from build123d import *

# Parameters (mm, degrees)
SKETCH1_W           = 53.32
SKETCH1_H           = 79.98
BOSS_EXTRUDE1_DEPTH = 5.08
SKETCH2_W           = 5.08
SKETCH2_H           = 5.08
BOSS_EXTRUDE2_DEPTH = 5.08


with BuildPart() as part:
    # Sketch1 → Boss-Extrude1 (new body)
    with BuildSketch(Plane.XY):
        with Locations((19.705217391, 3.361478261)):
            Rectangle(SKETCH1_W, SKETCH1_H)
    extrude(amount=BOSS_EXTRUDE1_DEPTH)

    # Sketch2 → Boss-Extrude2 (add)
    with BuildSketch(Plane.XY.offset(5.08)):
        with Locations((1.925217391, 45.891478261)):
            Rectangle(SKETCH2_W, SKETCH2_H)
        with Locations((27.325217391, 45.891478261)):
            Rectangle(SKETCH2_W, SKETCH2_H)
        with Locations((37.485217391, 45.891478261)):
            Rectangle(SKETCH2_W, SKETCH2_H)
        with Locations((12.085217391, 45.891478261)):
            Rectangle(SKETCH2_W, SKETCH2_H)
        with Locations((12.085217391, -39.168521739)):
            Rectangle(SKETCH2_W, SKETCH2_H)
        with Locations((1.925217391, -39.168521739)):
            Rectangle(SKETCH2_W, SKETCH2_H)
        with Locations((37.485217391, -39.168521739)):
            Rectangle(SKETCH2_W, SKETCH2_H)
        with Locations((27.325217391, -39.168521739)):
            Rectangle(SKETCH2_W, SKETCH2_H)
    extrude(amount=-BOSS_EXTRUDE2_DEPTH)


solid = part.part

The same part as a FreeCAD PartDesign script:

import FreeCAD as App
import Part
import Sketcher

V = App.Vector
Q = App.Units.Quantity

doc = App.newDocument("Part")
body = doc.addObject("PartDesign::Body", "Body")

# Sketch on XY plane
sketch1 = body.newObject("Sketcher::SketchObject", "Sketch")
sketch1.AttachmentSupport = (doc.getObject("XY_Plane"), [""])
sketch1.MapMode = "FlatFace"
sketch1.addGeometry([
    Part.LineSegment(V(-7, 43, 0), V(-7, -37, 0)),
    Part.LineSegment(V(-7, -37, 0), V(46, -37, 0)),
    Part.LineSegment(V(46, -37, 0), V(46, 43, 0)),
    Part.LineSegment(V(46, 43, 0), V(-7, 43, 0)),
], False)
sketch1.addConstraint([
    Sketcher.Constraint("Coincident", 0, 2, 1, 1),
    Sketcher.Constraint("Coincident", 1, 2, 2, 1),
    Sketcher.Constraint("Coincident", 2, 2, 3, 1),
    Sketcher.Constraint("Coincident", 3, 2, 0, 1),
    Sketcher.Constraint("Vertical", 0),
    Sketcher.Constraint("Horizontal", 1),
    Sketcher.Constraint("Vertical", 2),
    Sketcher.Constraint("Horizontal", 3),
    Sketcher.Constraint("DistanceX", 1, 1, 1, 2, 53.32),
    Sketcher.Constraint("DistanceY", 0, 2, 0, 1, 79.98),
    Sketcher.Constraint("DistanceY", 0, 2, -1, 1, 36.628522),
    Sketcher.Constraint("DistanceX", 0, 2, -1, 1, 6.954783),
])
pad1 = body.newObject("PartDesign::Pad", "Pad")
pad1.Profile = sketch1
pad1.Length = Q("0.2 in")

# Sketch on XY plane
sketch2 = body.newObject("Sketcher::SketchObject", "Sketch001")
sketch2.AttachmentSupport = (doc.getObject("XY_Plane"), [""])
sketch2.MapMode = "FlatFace"
sketch2.AttachmentOffset = App.Placement(V(0, 0, 0.2 * 25.4), App.Rotation())
sketch2.addGeometry([
    Part.LineSegment(V(-1, 48, 0), V(-1, 43, 0)),  # 0
    Part.LineSegment(V(-1, 43, 0), V(4, 43, 0)),  # 1
    Part.LineSegment(V(4, 43, 0), V(4, 48, 0)),  # 2
    Part.LineSegment(V(4, 48, 0), V(-1, 48, 0)),  # 3
    Part.LineSegment(V(25, 48, 0), V(25, 43, 0)),  # 4
    Part.LineSegment(V(25, 43, 0), V(30, 43, 0)),  # 5
    Part.LineSegment(V(30, 43, 0), V(30, 48, 0)),  # 6
    Part.LineSegment(V(30, 48, 0), V(25, 48, 0)),  # 7
    Part.LineSegment(V(35, 48, 0), V(35, 43, 0)),  # 8
    Part.LineSegment(V(35, 43, 0), V(40, 43, 0)),  # 9
    Part.LineSegment(V(40, 43, 0), V(40, 48, 0)),  # 10
    Part.LineSegment(V(40, 48, 0), V(35, 48, 0)),  # 11
    Part.LineSegment(V(10, 48, 0), V(10, 43, 0)),  # 12
    Part.LineSegment(V(10, 43, 0), V(15, 43, 0)),  # 13
    Part.LineSegment(V(15, 43, 0), V(15, 48, 0)),  # 14
    Part.LineSegment(V(15, 48, 0), V(10, 48, 0)),  # 15
    Part.LineSegment(V(10, -37, 0), V(10, -42, 0)),  # 16
    Part.LineSegment(V(10, -42, 0), V(15, -42, 0)),  # 17
    Part.LineSegment(V(15, -42, 0), V(15, -37, 0)),  # 18
    Part.LineSegment(V(15, -37, 0), V(10, -37, 0)),  # 19
    Part.LineSegment(V(-1, -37, 0), V(-1, -42, 0)),  # 20
    Part.LineSegment(V(-1, -42, 0), V(4, -42, 0)),  # 21
    Part.LineSegment(V(4, -42, 0), V(4, -37, 0)),  # 22
    Part.LineSegment(V(4, -37, 0), V(-1, -37, 0)),  # 23
    Part.LineSegment(V(35, -37, 0), V(35, -42, 0)),  # 24
    Part.LineSegment(V(35, -42, 0), V(40, -42, 0)),  # 25
    Part.LineSegment(V(40, -42, 0), V(40, -37, 0)),  # 26
    Part.LineSegment(V(40, -37, 0), V(35, -37, 0)),  # 27
    Part.LineSegment(V(25, -37, 0), V(25, -42, 0)),  # 28
    Part.LineSegment(V(25, -42, 0), V(30, -42, 0)),  # 29
    Part.LineSegment(V(30, -42, 0), V(30, -37, 0)),  # 30
    Part.LineSegment(V(30, -37, 0), V(25, -37, 0)),  # 31
], False)
sketch2.addConstraint([
    Sketcher.Constraint("Coincident", 0, 2, 1, 1),
    Sketcher.Constraint("Coincident", 1, 2, 2, 1),
    Sketcher.Constraint("Coincident", 2, 2, 3, 1),
    Sketcher.Constraint("Coincident", 3, 2, 0, 1),
    Sketcher.Constraint("Coincident", 4, 2, 5, 1),
    Sketcher.Constraint("Coincident", 5, 2, 6, 1),
    Sketcher.Constraint("Coincident", 6, 2, 7, 1),
    Sketcher.Constraint("Coincident", 7, 2, 4, 1),
    Sketcher.Constraint("Coincident", 8, 2, 9, 1),
    Sketcher.Constraint("Coincident", 9, 2, 10, 1),
    Sketcher.Constraint("Coincident", 10, 2, 11, 1),
    Sketcher.Constraint("Coincident", 11, 2, 8, 1),
    Sketcher.Constraint("Coincident", 12, 2, 13, 1),
    Sketcher.Constraint("Coincident", 13, 2, 14, 1),
    Sketcher.Constraint("Coincident", 14, 2, 15, 1),
    Sketcher.Constraint("Coincident", 15, 2, 12, 1),
    Sketcher.Constraint("Coincident", 16, 2, 17, 1),
    Sketcher.Constraint("Coincident", 17, 2, 18, 1),
    Sketcher.Constraint("Coincident", 18, 2, 19, 1),
    Sketcher.Constraint("Coincident", 19, 2, 16, 1),
    Sketcher.Constraint("Coincident", 20, 2, 21, 1),
    Sketcher.Constraint("Coincident", 21, 2, 22, 1),
    Sketcher.Constraint("Coincident", 22, 2, 23, 1),
    Sketcher.Constraint("Coincident", 23, 2, 20, 1),
    Sketcher.Constraint("Coincident", 24, 2, 25, 1),
    Sketcher.Constraint("Coincident", 25, 2, 26, 1),
    Sketcher.Constraint("Coincident", 26, 2, 27, 1),
    Sketcher.Constraint("Coincident", 27, 2, 24, 1),
    Sketcher.Constraint("Coincident", 28, 2, 29, 1),
    Sketcher.Constraint("Coincident", 29, 2, 30, 1),
    Sketcher.Constraint("Coincident", 30, 2, 31, 1),
    Sketcher.Constraint("Coincident", 31, 2, 28, 1),
    Sketcher.Constraint("Vertical", 0),
    Sketcher.Constraint("Horizontal", 1),
    Sketcher.Constraint("Vertical", 2),
    Sketcher.Constraint("Horizontal", 3),
    Sketcher.Constraint("Vertical", 4),
    Sketcher.Constraint("Horizontal", 5),
    Sketcher.Constraint("Vertical", 6),
    Sketcher.Constraint("Horizontal", 7),
    Sketcher.Constraint("Vertical", 8),
    Sketcher.Constraint("Horizontal", 9),
    Sketcher.Constraint("Vertical", 10),
    Sketcher.Constraint("Horizontal", 11),
    Sketcher.Constraint("Vertical", 12),
    Sketcher.Constraint("Horizontal", 13),
    Sketcher.Constraint("Vertical", 14),
    Sketcher.Constraint("Horizontal", 15),
    Sketcher.Constraint("Vertical", 16),
    Sketcher.Constraint("Horizontal", 17),
    Sketcher.Constraint("Vertical", 18),
    Sketcher.Constraint("Horizontal", 19),
    Sketcher.Constraint("Vertical", 20),
    Sketcher.Constraint("Horizontal", 21),
    Sketcher.Constraint("Vertical", 22),
    Sketcher.Constraint("Horizontal", 23),
    Sketcher.Constraint("Vertical", 24),
    Sketcher.Constraint("Horizontal", 25),
    Sketcher.Constraint("Vertical", 26),
    Sketcher.Constraint("Horizontal", 27),
    Sketcher.Constraint("Vertical", 28),
    Sketcher.Constraint("Horizontal", 29),
    Sketcher.Constraint("Vertical", 30),
    Sketcher.Constraint("Horizontal", 31),
    Sketcher.Constraint("Horizontal", 1, 2, 4, 2),
    Sketcher.Constraint("Horizontal", 3, 2, 6, 2),
    Sketcher.Constraint("Horizontal", 5, 2, 8, 2),
    Sketcher.Constraint("Horizontal", 7, 2, 10, 2),
    Sketcher.Constraint("Horizontal", 9, 2, 12, 2),
    Sketcher.Constraint("Horizontal", 11, 2, 14, 2),
    Sketcher.Constraint("Horizontal", 17, 2, 20, 2),
    Sketcher.Constraint("Horizontal", 19, 2, 22, 2),
    Sketcher.Constraint("Horizontal", 21, 2, 24, 2),
    Sketcher.Constraint("Horizontal", 23, 2, 26, 2),
    Sketcher.Constraint("Horizontal", 25, 2, 28, 2),
    Sketcher.Constraint("Horizontal", 27, 2, 30, 2),
    Sketcher.Constraint("Vertical", 15, 2, 16, 2),
    Sketcher.Constraint("Vertical", 14, 2, 17, 2),
    Sketcher.Constraint("Vertical", 3, 2, 20, 2),
    Sketcher.Constraint("Vertical", 2, 2, 21, 2),
    Sketcher.Constraint("Vertical", 11, 2, 24, 2),
    Sketcher.Constraint("Vertical", 10, 2, 25, 2),
    Sketcher.Constraint("Vertical", 7, 2, 28, 2),
    Sketcher.Constraint("Vertical", 6, 2, 29, 2),
    Sketcher.Constraint("Equal", 3, 5),
    Sketcher.Constraint("Equal", 7, 9),
    Sketcher.Constraint("Equal", 11, 13),
    Sketcher.Constraint("Equal", 31, 0),
    Sketcher.Constraint("Equal", 14, 16),
    Sketcher.Constraint("DistanceX", 1, 1, 1, 2, Q("0.2 in")),
    Sketcher.Constraint("DistanceX", 0, 2, 4, 2, Q("1 in")),
    Sketcher.Constraint("DistanceX", 16, 2, 24, 2, Q("1 in")),
    Sketcher.Constraint("DistanceX", 5, 2, 8, 2, Q("0.2 in")),
    Sketcher.Constraint("DistanceY", 16, 2, 12, 2, 85.06),
    Sketcher.Constraint("DistanceY", -1, 1, 0, 2, 43.351478),
    Sketcher.Constraint("DistanceX", 0, 2, -1, 1, 0.614783),
])
pad2 = body.newObject("PartDesign::Pad", "Pad001")
pad2.Profile = sketch2
pad2.Length = Q("0.2 in")
pad2.Reversed = True

doc.recompute()
